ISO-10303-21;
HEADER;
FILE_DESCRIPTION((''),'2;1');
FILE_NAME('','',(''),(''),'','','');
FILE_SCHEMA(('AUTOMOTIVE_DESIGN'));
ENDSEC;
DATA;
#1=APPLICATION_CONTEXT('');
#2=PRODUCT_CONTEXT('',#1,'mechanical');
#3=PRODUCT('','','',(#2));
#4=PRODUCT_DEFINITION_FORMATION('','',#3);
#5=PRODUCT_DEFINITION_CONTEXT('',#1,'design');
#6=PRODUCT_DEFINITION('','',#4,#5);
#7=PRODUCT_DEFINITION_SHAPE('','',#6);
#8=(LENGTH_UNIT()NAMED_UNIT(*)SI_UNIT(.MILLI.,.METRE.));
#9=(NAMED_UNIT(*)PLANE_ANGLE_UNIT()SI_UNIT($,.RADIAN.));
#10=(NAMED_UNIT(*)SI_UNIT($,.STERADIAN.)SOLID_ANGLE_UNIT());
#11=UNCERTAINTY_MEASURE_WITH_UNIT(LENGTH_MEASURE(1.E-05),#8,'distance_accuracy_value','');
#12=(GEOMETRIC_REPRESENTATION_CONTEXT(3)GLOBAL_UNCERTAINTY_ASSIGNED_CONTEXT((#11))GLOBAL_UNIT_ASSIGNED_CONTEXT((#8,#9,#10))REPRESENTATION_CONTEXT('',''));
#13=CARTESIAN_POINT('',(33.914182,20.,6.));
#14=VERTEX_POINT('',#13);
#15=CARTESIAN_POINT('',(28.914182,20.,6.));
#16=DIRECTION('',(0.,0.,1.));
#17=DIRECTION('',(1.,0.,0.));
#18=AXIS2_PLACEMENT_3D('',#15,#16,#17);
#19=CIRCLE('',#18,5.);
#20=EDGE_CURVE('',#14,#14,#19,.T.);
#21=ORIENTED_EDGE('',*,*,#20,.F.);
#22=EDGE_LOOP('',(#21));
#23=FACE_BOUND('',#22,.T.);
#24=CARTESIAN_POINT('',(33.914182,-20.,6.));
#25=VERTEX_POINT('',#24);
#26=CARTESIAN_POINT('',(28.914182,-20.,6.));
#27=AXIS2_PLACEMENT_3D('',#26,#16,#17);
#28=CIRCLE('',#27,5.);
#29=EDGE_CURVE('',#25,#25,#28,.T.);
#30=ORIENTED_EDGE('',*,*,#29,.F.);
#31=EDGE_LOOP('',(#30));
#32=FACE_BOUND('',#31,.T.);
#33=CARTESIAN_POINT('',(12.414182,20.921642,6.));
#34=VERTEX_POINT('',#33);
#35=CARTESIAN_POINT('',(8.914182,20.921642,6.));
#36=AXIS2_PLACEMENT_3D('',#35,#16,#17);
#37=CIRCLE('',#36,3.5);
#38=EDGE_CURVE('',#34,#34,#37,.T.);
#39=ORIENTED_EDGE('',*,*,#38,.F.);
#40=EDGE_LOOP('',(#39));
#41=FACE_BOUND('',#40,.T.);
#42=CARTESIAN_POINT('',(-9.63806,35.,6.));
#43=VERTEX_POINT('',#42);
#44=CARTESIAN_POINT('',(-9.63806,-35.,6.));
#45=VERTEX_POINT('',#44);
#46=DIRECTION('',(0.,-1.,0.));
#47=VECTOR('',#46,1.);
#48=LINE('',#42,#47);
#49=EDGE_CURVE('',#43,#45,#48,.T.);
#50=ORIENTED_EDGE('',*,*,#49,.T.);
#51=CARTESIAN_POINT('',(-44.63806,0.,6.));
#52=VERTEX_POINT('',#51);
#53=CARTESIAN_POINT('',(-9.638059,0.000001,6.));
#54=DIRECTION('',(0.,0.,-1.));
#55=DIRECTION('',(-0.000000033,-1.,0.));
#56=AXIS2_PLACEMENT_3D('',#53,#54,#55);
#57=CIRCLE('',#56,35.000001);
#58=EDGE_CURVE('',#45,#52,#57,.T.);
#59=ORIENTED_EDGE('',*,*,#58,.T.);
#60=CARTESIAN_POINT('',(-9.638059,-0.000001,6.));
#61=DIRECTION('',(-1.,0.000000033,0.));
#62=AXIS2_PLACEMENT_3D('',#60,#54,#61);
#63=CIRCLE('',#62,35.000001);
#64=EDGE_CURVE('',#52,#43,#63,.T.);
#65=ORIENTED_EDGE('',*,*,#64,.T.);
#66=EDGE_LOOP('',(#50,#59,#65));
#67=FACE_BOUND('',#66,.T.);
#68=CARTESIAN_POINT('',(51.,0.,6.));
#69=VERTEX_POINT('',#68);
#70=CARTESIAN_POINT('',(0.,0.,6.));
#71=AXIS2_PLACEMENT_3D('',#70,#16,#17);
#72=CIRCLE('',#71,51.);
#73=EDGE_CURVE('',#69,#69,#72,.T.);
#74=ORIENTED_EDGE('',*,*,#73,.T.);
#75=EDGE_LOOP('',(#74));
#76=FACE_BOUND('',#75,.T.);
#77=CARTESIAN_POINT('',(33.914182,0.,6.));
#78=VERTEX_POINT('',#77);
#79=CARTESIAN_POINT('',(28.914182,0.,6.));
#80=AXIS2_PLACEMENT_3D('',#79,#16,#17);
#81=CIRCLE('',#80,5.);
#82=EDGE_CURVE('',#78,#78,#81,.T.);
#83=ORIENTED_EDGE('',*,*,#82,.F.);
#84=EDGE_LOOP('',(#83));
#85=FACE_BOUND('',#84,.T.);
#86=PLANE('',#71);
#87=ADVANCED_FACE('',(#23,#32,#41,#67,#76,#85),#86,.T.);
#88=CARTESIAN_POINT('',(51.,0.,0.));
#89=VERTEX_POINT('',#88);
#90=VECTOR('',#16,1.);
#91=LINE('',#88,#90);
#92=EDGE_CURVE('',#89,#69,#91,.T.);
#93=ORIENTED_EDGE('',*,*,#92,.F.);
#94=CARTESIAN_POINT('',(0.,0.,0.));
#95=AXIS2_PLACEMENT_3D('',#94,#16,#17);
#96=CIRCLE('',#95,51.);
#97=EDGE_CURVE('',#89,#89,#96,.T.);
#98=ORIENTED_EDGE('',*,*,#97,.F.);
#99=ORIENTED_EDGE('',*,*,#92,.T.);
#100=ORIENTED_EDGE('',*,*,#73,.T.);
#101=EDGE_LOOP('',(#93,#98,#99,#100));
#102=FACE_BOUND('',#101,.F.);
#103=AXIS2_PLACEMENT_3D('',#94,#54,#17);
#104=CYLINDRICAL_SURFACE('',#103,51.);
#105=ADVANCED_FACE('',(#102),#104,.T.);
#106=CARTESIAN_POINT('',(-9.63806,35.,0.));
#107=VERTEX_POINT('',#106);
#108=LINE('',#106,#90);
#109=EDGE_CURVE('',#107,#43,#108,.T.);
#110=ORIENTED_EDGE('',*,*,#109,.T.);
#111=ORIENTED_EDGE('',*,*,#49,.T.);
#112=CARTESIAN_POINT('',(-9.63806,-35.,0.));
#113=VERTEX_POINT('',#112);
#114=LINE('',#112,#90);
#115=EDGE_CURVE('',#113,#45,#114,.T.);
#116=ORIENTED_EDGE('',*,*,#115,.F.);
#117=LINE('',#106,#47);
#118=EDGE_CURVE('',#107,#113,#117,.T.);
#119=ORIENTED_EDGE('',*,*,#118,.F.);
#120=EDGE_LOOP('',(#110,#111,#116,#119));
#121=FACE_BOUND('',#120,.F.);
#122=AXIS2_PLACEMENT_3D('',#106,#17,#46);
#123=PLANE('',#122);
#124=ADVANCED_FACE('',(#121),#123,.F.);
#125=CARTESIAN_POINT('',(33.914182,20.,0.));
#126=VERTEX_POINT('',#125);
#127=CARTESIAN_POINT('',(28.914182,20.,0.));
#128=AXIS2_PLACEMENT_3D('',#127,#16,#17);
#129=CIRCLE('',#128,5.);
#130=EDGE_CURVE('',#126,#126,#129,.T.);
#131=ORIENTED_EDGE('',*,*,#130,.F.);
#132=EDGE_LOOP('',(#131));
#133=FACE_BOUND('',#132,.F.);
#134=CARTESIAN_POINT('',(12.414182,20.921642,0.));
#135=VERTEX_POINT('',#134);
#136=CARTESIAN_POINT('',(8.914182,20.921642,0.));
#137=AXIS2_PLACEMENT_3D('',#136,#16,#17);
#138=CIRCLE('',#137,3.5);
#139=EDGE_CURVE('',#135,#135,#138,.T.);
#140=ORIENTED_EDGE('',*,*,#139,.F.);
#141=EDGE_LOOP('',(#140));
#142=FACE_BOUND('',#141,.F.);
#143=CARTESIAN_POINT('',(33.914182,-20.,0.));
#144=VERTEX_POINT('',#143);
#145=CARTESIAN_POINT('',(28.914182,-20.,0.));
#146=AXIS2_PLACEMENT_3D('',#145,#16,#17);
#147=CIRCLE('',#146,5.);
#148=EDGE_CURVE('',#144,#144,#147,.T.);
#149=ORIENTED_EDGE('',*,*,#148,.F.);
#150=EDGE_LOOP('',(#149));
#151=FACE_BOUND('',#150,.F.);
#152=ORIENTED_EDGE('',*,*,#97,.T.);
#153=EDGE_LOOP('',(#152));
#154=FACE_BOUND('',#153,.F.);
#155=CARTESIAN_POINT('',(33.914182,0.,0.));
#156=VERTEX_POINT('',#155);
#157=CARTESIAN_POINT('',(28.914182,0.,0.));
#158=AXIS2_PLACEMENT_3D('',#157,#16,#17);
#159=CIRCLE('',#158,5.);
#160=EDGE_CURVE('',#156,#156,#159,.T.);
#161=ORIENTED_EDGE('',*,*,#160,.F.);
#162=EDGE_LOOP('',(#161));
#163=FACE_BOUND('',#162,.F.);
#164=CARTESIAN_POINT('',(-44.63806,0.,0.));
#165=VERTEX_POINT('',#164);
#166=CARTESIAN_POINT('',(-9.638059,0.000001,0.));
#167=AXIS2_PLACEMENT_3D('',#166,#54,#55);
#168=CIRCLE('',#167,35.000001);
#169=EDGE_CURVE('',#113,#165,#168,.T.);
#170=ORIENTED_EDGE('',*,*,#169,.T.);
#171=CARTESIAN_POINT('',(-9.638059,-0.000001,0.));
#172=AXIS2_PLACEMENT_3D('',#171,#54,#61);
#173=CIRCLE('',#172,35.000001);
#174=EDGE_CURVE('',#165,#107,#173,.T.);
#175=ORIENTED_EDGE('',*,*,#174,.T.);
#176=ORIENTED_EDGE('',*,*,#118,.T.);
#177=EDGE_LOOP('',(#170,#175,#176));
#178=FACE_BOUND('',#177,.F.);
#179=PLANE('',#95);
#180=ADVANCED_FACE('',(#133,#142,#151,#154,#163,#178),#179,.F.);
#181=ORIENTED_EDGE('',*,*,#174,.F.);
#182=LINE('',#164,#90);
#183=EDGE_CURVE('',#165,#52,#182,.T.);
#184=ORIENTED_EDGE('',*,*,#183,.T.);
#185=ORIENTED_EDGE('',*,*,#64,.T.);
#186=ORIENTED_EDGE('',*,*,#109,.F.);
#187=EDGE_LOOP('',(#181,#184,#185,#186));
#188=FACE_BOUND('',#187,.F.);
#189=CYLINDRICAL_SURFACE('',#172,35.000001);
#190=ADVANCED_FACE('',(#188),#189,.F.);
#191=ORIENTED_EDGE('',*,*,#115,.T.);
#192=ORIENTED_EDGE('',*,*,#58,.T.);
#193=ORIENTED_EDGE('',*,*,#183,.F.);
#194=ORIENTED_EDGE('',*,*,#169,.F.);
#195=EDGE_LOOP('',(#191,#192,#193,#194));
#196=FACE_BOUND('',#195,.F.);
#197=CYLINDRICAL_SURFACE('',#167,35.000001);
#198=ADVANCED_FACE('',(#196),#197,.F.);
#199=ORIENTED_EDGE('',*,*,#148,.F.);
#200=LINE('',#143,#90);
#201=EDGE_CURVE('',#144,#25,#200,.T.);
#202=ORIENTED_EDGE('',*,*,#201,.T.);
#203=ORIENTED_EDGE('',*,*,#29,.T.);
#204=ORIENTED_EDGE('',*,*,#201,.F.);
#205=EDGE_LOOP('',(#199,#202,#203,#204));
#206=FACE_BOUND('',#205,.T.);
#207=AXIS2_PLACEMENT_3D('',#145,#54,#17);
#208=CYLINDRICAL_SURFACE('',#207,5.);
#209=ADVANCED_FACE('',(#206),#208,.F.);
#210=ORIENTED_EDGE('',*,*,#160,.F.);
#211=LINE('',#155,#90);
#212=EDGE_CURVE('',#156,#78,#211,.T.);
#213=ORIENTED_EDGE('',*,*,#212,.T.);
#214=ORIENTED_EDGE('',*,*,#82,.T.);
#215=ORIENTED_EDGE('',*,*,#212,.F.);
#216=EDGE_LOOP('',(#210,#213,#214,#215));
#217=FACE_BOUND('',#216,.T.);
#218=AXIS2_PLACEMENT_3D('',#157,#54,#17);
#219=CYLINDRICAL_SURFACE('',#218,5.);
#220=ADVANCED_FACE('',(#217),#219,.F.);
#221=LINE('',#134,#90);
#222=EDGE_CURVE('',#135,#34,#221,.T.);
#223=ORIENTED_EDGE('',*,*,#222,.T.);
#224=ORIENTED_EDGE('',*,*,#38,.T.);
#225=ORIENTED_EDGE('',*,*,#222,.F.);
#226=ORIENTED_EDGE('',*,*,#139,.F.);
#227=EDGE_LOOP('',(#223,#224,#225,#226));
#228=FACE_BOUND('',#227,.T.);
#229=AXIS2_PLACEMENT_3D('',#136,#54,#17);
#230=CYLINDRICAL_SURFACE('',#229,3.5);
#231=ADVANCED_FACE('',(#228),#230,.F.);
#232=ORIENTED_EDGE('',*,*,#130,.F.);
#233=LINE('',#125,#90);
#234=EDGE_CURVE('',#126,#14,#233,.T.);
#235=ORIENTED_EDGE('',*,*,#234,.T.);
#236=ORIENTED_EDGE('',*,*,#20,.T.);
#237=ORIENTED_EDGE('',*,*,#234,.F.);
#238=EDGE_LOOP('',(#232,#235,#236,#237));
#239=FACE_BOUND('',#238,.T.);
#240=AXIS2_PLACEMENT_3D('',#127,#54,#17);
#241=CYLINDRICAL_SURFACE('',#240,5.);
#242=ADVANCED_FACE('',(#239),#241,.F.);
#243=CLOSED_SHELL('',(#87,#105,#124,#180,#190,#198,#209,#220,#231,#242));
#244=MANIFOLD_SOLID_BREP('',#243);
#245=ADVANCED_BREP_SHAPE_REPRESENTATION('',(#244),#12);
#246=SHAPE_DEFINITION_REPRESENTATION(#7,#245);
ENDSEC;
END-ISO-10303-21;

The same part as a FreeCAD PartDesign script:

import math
import FreeCAD as App
import Part
import Sketcher
from FreeCAD import Vector

doc = App.newDocument("Part")
body = doc.addObject("PartDesign::Body", "Body")

# Sketch on XY plane
sketch1 = body.newObject("Sketcher::SketchObject", "Sketch")
sketch1.AttachmentSupport = (doc.getObject("XY_Plane"), [""])
sketch1.MapMode = "FlatFace"
sketch1.addGeometry([
    Part.Circle(Vector(0, 0, 0), Vector(0, 0, 1), 51),  # 0
    Part.Circle(Vector(28.9, -20, 0), Vector(0, 0, 1), 5),  # 1
    Part.ArcOfCircle(Part.Circle(Vector(-9.6, 0, 0), Vector(0, 0, 1), 35), math.radians(-180), math.radians(-90)),  # 2
    Part.ArcOfCircle(Part.Circle(Vector(-9.6, 0, 0), Vector(0, 0, 1), 35), math.radians(90), math.radians(180)),  # 3
    Part.LineSegment(Vector(-9.6, 35, 0), Vector(-9.6, -35, 0)),  # 4
    Part.Circle(Vector(28.9, 0, 0), Vector(0, 0, 1), 5),  # 5
    Part.Circle(Vector(8.9, 20.9, 0), Vector(0, 0, 1), 3.5),  # 6
    Part.Circle(Vector(28.9, 20, 0), Vector(0, 0, 1), 5),  # 7
], False)
sketch1.addConstraint([
    Sketcher.Constraint("Tangent", 2, 1, 3, 2),
    Sketcher.Constraint("Coincident", 3, 1, 4, 1),
    Sketcher.Constraint("Coincident", 4, 2, 2, 2),
    Sketcher.Constraint("Vertical", 4),
    Sketcher.Constraint("Coincident", 0, 3, -1, 1),
    Sketcher.Constraint("Equal", 2, 3),
    Sketcher.Constraint("Equal", 1, 5),
    Sketcher.Constraint("Equal", 5, 7),
    Sketcher.Constraint("Symmetric", 1, 3, 7, 3, -1),
    Sketcher.Constraint("PointOnObject", 2, 3, -1),
    Sketcher.Constraint("PointOnObject", 5, 3, -1),
    Sketcher.Constraint("PointOnObject", 2, 1, -1),
    Sketcher.Constraint("Vertical", 1, 3, 5, 3),
    Sketcher.Constraint("Vertical", 2, 3, 3, 1),
    Sketcher.Constraint("Diameter", 0, 102.0),
    Sketcher.Constraint("Diameter", 1, 10.0),
    Sketcher.Constraint("Diameter", 6, 7.0),
    Sketcher.Constraint("Radius", 2, 35.000001),
    Sketcher.Constraint("DistanceY", 1, 3, -1, 1, 20.0),
    Sketcher.Constraint("DistanceX", 6, 3, 5, 3, 20.0),
    Sketcher.Constraint("DistanceX", -1, 1, 1, 3, 28.914182),
    Sketcher.Constraint("DistanceX", 2, 3, -1, 1, 9.638059),
    Sketcher.Constraint("DistanceY", -1, 1, 6, 3, 20.921642),
])
pad1 = body.newObject("PartDesign::Pad", "Pad")
pad1.Profile = sketch1
pad1.Length = 6

doc.recompute()
